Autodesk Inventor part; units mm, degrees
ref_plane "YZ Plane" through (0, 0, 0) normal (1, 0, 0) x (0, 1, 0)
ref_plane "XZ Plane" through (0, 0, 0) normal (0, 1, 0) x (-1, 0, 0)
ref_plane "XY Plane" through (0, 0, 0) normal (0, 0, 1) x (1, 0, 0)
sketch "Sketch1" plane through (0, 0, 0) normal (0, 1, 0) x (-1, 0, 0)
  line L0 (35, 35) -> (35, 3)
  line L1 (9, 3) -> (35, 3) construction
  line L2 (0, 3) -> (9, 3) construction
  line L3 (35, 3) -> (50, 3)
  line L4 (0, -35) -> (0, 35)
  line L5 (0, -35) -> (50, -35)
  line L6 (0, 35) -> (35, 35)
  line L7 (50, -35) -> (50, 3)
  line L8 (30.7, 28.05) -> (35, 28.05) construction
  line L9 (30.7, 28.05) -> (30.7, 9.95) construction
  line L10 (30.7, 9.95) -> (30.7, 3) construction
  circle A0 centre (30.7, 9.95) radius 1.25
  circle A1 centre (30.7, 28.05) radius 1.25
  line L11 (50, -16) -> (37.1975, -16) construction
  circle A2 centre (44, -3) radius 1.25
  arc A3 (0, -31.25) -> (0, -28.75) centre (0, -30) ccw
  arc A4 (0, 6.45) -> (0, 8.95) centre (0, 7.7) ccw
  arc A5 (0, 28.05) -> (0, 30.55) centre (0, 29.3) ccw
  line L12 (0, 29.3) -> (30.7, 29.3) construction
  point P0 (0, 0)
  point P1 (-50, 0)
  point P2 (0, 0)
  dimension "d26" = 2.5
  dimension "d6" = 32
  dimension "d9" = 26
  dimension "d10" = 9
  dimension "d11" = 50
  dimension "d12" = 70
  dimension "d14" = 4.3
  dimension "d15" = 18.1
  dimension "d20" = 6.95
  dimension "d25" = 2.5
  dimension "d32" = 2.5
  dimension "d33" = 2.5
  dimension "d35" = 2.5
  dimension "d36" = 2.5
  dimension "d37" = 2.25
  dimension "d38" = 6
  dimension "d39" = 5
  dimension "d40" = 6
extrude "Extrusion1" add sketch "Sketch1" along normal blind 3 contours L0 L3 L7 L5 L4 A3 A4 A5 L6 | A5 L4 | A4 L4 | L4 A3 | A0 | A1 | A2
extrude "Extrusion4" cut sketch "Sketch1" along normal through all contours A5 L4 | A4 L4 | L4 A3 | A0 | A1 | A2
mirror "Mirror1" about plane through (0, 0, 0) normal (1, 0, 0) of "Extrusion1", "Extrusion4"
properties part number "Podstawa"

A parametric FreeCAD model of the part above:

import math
import FreeCAD as App
import Part
import Sketcher


def add_polygon(sketch, points):
    """Adds a closed chain of lines whose ends are joined by coincident constraints."""
    first, n = sketch.GeometryCount, len(points)
    for a, b in zip(points, points[1:] + points[:1]):
        sketch.addGeometry(Part.LineSegment(App.Vector(*a, 0), App.Vector(*b, 0)), False)
    for i in range(n):
        sketch.addConstraint(Sketcher.Constraint("Coincident", first + i, 2, first + (i + 1) % n, 1))

doc = App.newDocument("Part")
body = doc.addObject("PartDesign::Body", "Body")

# Sketch on XZ plane
sketch1 = body.newObject("Sketcher::SketchObject", "Sketch")
sketch1.AttachmentSupport = (doc.getObject("XZ_Plane"), [""])
sketch1.MapMode = "FlatFace"
add_polygon(sketch1, [(-35, 3), (-35, 35), (0, 35), (0, -35), (-50, -35), (-50, 3)])  # lines 0-5
sketch1.addConstraint([
    Sketcher.Constraint("Vertical", 0),
    Sketcher.Constraint("Horizontal", 1),
    Sketcher.Constraint("Vertical", 2),
    Sketcher.Constraint("Horizontal", 3),
    Sketcher.Constraint("Vertical", 4),
    Sketcher.Constraint("Horizontal", 5),
    Sketcher.Constraint("Symmetric", 1, 2, 2, 2, -1, 1),
    Sketcher.Constraint("DistanceX", 3, 2, 3, 1, 50.0),
    Sketcher.Constraint("DistanceY", 0, 1, 0, 2, 32.0),
    Sketcher.Constraint("DistanceY", 2, 2, 2, 1, 70.0),
    Sketcher.Constraint("DistanceX", 1, 1, 1, 2, 35.0),
])
pad1 = body.newObject("PartDesign::Pad", "Pad")
pad1.Profile = sketch1
pad1.Length = 3
pad1.Reversed = True

# Sketch on XZ plane
sketch2 = body.newObject("Sketcher::SketchObject", "Sketch001")
sketch2.AttachmentSupport = (doc.getObject("XZ_Plane"), [""])
sketch2.MapMode = "FlatFace"
sketch2.addGeometry([
    Part.ArcOfCircle(Part.Circle(App.Vector(0, 29.3, 0), App.Vector(0, 0, 1), 1.2), math.radians(90), math.radians(270)),  # 0
    Part.LineSegment(App.Vector(0, 30.6, 0), App.Vector(0, 28.1, 0)),  # 1
    Part.ArcOfCircle(Part.Circle(App.Vector(0, 7.7, 0), App.Vector(0, 0, 1), 1.2), math.radians(90), math.radians(270)),  # 2
    Part.LineSegment(App.Vector(0, 8.9, 0), App.Vector(0, 6.5, 0)),  # 3
    Part.LineSegment(App.Vector(0, -28.8, 0), App.Vector(0, -31.2, 0)),  # 4
    Part.ArcOfCircle(Part.Circle(App.Vector(0, -30, 0), App.Vector(0, 0, 1), 1.2), math.radians(90), math.radians(270)),  # 5
    Part.Circle(App.Vector(-30.7, 9.9, 0), App.Vector(0, 0, 1), 1.2),  # 6
    Part.Circle(App.Vector(-30.7, 28.1, 0), App.Vector(0, 0, 1), 1.2),  # 7
    Part.Circle(App.Vector(-44, -3, 0), App.Vector(0, 0, 1), 1.2),  # 8
], False)
sketch2.addConstraint([
    Sketcher.Constraint("Coincident", 0, 1, 1, 1),
    Sketcher.Constraint("Coincident", 1, 2, 0, 2),
    Sketcher.Constraint("Coincident", 2, 1, 3, 1),
    Sketcher.Constraint("Coincident", 3, 2, 2, 2),
    Sketcher.Constraint("Coincident", 4, 1, 5, 1),
    Sketcher.Constraint("Coincident", 5, 2, 4, 2),
    Sketcher.Constraint("Vertical", 1),
    Sketcher.Constraint("Vertical", 3),
    Sketcher.Constraint("Vertical", 4),
    Sketcher.Constraint("Equal", 0, 2),
    Sketcher.Constraint("Equal", 2, 5),
    Sketcher.Constraint("Equal", 5, 6),
    Sketcher.Constraint("Equal", 6, 7),
    Sketcher.Constraint("Equal", 7, 8),
    Sketcher.Constraint("PointOnObject", 0, 3, -2),
    Sketcher.Constraint("PointOnObject", 2, 3, -2),
    Sketcher.Constraint("PointOnObject", 5, 3, -2),
    Sketcher.Constraint("PointOnObject", 0, 1, -2),
    Sketcher.Constraint("PointOnObject", 2, 1, -2),
    Sketcher.Constraint("PointOnObject", 4, 1, -2),
    Sketcher.Constraint("Horizontal", 7, 3, 1, 2),
    Sketcher.Constraint("Vertical", 6, 3, 7, 3),
    Sketcher.Constraint("Diameter", 6, 2.5),
    Sketcher.Constraint("DistanceY", 6, 3, 7, 3, 18.1),
    Sketcher.Constraint("DistanceY", 2, 3, 6, 3, 2.25),
    Sketcher.Constraint("DistanceY", 5, 3, -1, 1, 30.0),
    Sketcher.Constraint("DistanceX", 8, 3, -1, 1, 44.0),
    Sketcher.Constraint("DistanceY", 8, 3, -1, 1, 3.0),
    Sketcher.Constraint("DistanceY", -1, 1, 0, 3, 29.3),
    Sketcher.Constraint("DistanceX", 6, 3, -1, 1, 30.7),
])
pocket1 = body.newObject("PartDesign::Pocket", "Pocket")
pocket1.Profile = sketch2
pocket1.Type = "ThroughAll"
doc.recompute()

mirrored = body.newObject("PartDesign::Mirrored", "Mirrored")
mirrored.Originals = [pad1, pocket1]
mirrored.MirrorPlane = (doc.getObject("YZ_Plane"), [""])
body.Tip = mirrored

doc.recompute()
